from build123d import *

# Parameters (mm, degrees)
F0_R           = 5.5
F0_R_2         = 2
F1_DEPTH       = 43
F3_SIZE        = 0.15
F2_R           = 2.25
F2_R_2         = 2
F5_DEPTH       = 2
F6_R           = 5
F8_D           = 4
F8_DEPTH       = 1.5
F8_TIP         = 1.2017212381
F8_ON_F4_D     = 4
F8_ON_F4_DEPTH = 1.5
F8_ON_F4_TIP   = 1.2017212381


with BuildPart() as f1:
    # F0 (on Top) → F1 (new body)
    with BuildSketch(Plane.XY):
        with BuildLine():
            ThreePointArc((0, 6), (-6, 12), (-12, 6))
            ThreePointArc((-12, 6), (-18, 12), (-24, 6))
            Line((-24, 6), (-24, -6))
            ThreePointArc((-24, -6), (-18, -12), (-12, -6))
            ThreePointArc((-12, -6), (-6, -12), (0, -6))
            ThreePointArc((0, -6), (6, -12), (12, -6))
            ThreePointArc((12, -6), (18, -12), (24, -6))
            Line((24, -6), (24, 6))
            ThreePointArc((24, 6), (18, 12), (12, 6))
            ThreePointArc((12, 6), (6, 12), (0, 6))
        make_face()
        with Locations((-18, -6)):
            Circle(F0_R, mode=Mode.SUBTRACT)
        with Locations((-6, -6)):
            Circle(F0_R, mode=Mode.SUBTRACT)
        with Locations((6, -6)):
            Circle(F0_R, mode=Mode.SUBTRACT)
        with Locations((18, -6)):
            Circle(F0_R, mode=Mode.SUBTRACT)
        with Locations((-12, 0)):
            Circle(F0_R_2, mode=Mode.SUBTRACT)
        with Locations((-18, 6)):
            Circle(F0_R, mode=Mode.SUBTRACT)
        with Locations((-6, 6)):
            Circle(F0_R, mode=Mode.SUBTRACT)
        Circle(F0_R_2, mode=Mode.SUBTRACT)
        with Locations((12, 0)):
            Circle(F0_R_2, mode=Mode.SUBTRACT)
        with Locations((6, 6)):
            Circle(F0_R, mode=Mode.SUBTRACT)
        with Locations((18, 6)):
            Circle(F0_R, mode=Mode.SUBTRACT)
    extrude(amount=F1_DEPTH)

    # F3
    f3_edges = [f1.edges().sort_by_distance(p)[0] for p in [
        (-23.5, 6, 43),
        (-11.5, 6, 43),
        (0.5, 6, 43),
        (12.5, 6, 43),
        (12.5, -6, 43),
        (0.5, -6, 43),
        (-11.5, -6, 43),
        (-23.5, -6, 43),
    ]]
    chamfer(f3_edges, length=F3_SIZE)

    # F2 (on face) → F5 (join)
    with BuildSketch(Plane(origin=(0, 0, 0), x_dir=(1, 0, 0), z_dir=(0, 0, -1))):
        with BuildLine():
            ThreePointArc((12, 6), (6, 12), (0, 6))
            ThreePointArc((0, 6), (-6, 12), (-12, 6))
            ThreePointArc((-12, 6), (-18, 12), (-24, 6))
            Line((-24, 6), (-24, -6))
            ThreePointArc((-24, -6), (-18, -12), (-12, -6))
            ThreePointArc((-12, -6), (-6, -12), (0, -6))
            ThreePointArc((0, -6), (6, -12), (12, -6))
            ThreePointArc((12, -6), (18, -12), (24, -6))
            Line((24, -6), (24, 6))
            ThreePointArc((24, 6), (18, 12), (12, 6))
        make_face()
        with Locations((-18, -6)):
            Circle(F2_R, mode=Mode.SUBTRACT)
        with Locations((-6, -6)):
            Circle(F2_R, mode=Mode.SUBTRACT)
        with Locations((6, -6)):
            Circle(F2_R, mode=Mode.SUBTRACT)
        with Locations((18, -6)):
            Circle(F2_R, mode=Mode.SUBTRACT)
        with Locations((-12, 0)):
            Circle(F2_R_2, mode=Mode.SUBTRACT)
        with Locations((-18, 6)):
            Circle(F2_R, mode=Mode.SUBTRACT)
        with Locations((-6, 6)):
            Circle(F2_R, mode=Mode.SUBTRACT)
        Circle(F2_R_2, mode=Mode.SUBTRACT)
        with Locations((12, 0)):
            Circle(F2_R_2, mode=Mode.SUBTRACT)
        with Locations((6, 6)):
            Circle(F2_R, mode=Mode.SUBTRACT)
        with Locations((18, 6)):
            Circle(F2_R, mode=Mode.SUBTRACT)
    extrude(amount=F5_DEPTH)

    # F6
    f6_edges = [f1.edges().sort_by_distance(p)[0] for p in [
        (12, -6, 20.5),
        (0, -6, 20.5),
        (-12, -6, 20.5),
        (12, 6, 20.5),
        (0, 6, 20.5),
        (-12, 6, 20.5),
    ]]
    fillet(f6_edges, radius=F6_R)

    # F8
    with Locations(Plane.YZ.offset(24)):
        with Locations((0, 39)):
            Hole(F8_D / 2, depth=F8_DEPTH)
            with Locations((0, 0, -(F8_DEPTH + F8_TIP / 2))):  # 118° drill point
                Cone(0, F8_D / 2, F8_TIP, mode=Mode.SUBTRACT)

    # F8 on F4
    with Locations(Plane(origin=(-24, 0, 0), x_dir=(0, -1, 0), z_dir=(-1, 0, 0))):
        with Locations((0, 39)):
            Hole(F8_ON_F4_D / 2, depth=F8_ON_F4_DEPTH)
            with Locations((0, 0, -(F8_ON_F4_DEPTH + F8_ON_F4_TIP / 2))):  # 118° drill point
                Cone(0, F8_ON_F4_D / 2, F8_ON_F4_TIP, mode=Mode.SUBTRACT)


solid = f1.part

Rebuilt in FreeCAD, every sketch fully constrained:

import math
import FreeCAD as App
import Part
import Sketcher
Q = App.Units.Quantity


def edges_at(feature, points):
    """Names of the edges that pass closest to the given points."""
    edges = feature.Shape.Edges
    near = lambda p: min(range(len(edges)), key=lambda i: edges[i].distToShape(Part.Vertex(*p))[0])
    return sorted({f"Edge{near(p) + 1}" for p in points})

doc = App.newDocument("Part")
body = doc.addObject("PartDesign::Body", "Body")

sketch1 = body.newObject("Sketcher::SketchObject", "Sketch")
sketch1.AttachmentSupport = (doc.getObject("XY_Plane"), [""])
sketch1.MapMode = "FlatFace"
sketch1.addGeometry([
    Part.ArcOfCircle(Part.Circle(App.Vector(-6, 6, 0), App.Vector(0, 0, 1), 6), math.radians(0), math.radians(180)),
    Part.ArcOfCircle(Part.Circle(App.Vector(-18, 6, 0), App.Vector(0, 0, 1), 6), math.radians(0), math.radians(180)),
    Part.LineSegment(App.Vector(-24, 6, 0), App.Vector(-24, -6, 0)),
    Part.ArcOfCircle(Part.Circle(App.Vector(-18, -6, 0), App.Vector(0, 0, 1), 6), math.radians(180), math.radians(360)),
    Part.ArcOfCircle(Part.Circle(App.Vector(-6, -6, 0), App.Vector(0, 0, 1), 6), math.radians(180), math.radians(360)),
    Part.ArcOfCircle(Part.Circle(App.Vector(6, -6, 0), App.Vector(0, 0, 1), 6), math.radians(180), math.radians(360)),
    Part.ArcOfCircle(Part.Circle(App.Vector(18, -6, 0), App.Vector(0, 0, 1), 6), math.radians(180), math.radians(360)),
    Part.LineSegment(App.Vector(24, -6, 0), App.Vector(24, 6, 0)),
    Part.ArcOfCircle(Part.Circle(App.Vector(18, 6, 0), App.Vector(0, 0, 1), 6), math.radians(0), math.radians(180)),
    Part.ArcOfCircle(Part.Circle(App.Vector(6, 6, 0), App.Vector(0, 0, 1), 6), math.radians(0), math.radians(180)),
    Part.Circle(App.Vector(-18, -6, 0), App.Vector(0, 0, 1), 5.5),
    Part.Circle(App.Vector(-6, -6, 0), App.Vector(0, 0, 1), 5.5),
    Part.Circle(App.Vector(6, -6, 0), App.Vector(0, 0, 1), 5.5),
    Part.Circle(App.Vector(18, -6, 0), App.Vector(0, 0, 1), 5.5),
    Part.Circle(App.Vector(-12, 0, 0), App.Vector(0, 0, 1), 2),
    Part.Circle(App.Vector(-18, 6, 0), App.Vector(0, 0, 1), 5.5),
    Part.Circle(App.Vector(-6, 6, 0), App.Vector(0, 0, 1), 5.5),
    Part.Circle(App.Vector(0, 0, 0), App.Vector(0, 0, 1), 2),
    Part.Circle(App.Vector(12, 0, 0), App.Vector(0, 0, 1), 2),
    Part.Circle(App.Vector(6, 6, 0), App.Vector(0, 0, 1), 5.5),
    Part.Circle(App.Vector(18, 6, 0), App.Vector(0, 0, 1), 5.5),
], False)
sketch1.addConstraint([
    Sketcher.Constraint("Tangent", 0, 2, 1, 1),
    Sketcher.Constraint("Tangent", 1, 2, 2, 1),
    Sketcher.Constraint("Tangent", 2, 2, 3, 1),
    Sketcher.Constraint("Tangent", 3, 2, 4, 1),
    Sketcher.Constraint("Tangent", 4, 2, 5, 1),
    Sketcher.Constraint("Tangent", 5, 2, 6, 1),
    Sketcher.Constraint("Tangent", 6, 2, 7, 1),
    Sketcher.Constraint("Tangent", 7, 2, 8, 1),
    Sketcher.Constraint("Tangent", 8, 2, 9, 1),
    Sketcher.Constraint("Tangent", 9, 2, 0, 1),
    Sketcher.Constraint("Vertical", 2),
    Sketcher.Constraint("Vertical", 7),
    Sketcher.Constraint("Coincident", 17, 3, -1, 1),
    Sketcher.Constraint("Coincident", 10, 3, 3, 3),
    Sketcher.Constraint("Coincident", 11, 3, 4, 3),
    Sketcher.Constraint("Coincident", 12, 3, 5, 3),
    Sketcher.Constraint("Coincident", 13, 3, 6, 3),
    Sketcher.Constraint("Coincident", 15, 3, 1, 3),
    Sketcher.Constraint("Coincident", 16, 3, 0, 3),
    Sketcher.Constraint("Coincident", 19, 3, 9, 3),
    Sketcher.Constraint("Coincident", 20, 3, 8, 3),
    Sketcher.Constraint("Equal", 0, 1),
    Sketcher.Constraint("Equal", 1, 3),
    Sketcher.Constraint("Equal", 3, 4),
    Sketcher.Constraint("Equal", 4, 5),
    Sketcher.Constraint("Equal", 5, 6),
    Sketcher.Constraint("Equal", 6, 8),
    Sketcher.Constraint("Equal", 10, 11),
    Sketcher.Constraint("Equal", 11, 12),
    Sketcher.Constraint("Equal", 12, 13),
    Sketcher.Constraint("Equal", 13, 15),
    Sketcher.Constraint("Equal", 15, 16),
    Sketcher.Constraint("Equal", 14, 17),
    Sketcher.Constraint("Equal", 17, 18),
    Sketcher.Constraint("Equal", 16, 19),
    Sketcher.Constraint("Equal", 19, 20),
    Sketcher.Constraint("Symmetric", 0, 3, 5, 3, -1, 1),
    Sketcher.Constraint("Symmetric", 14, 3, 18, 3, -1, 1),
    Sketcher.Constraint("PointOnObject", 14, 3, -1),
    Sketcher.Constraint("Horizontal", 0, 3, 1, 3),
    Sketcher.Constraint("Horizontal", 3, 3, 4, 3),
    Sketcher.Constraint("Horizontal", 4, 3, 5, 3),
    Sketcher.Constraint("Horizontal", 5, 3, 6, 3),
    Sketcher.Constraint("Horizontal", 1, 3, 8, 3),
    Sketcher.Constraint("Horizontal", 8, 3, 9, 3),
    Sketcher.Constraint("Vertical", 14, 3, 0, 2),
    Sketcher.Constraint("Diameter", 10, Q("11 mm")),
    Sketcher.Constraint("Diameter", 14, Q("4 mm")),
    Sketcher.Constraint("Radius", 0, Q("6 mm")),
    Sketcher.Constraint("DistanceY", 2, 2, 2, 1, Q("12 mm")),
])
pad1 = body.newObject("PartDesign::Pad", "Pad")
pad1.Profile = sketch1
pad1.Length = 43
doc.recompute()

chamfer = body.newObject("PartDesign::Chamfer", "Chamfer")
chamfer.Base = (pad1, edges_at(pad1, [
    (-23.5, 6, 43),
    (-11.5, 6, 43),
    (0.5, 6, 43),
    (12.5, 6, 43),
    (12.5, -6, 43),
    (0.5, -6, 43),
    (-11.5, -6, 43),
    (-23.5, -6, 43),
]))
chamfer.Size = 0.15

sketch2 = body.newObject("Sketcher::SketchObject", "Sketch001")
sketch2.AttachmentSupport = (doc.getObject("XY_Plane"), [""])
sketch2.MapMode = "FlatFace"
sketch2.addGeometry([
    Part.ArcOfCircle(Part.Circle(App.Vector(6, -6, 0), App.Vector(0, 0, 1), 6), math.radians(180), math.radians(360)),
    Part.ArcOfCircle(Part.Circle(App.Vector(-6, -6, 0), App.Vector(0, 0, 1), 6), math.radians(180), math.radians(360)),
    Part.ArcOfCircle(Part.Circle(App.Vector(-18, -6, 0), App.Vector(0, 0, 1), 6), math.radians(180), math.radians(360)),
    Part.LineSegment(App.Vector(-24, -6, 0), App.Vector(-24, 6, 0)),
    Part.ArcOfCircle(Part.Circle(App.Vector(-18, 6, 0), App.Vector(0, 0, 1), 6), math.radians(0), math.radians(180)),
    Part.ArcOfCircle(Part.Circle(App.Vector(-6, 6, 0), App.Vector(0, 0, 1), 6), math.radians(0), math.radians(180)),
    Part.ArcOfCircle(Part.Circle(App.Vector(6, 6, 0), App.Vector(0, 0, 1), 6), math.radians(0), math.radians(180)),
    Part.ArcOfCircle(Part.Circle(App.Vector(18, 6, 0), App.Vector(0, 0, 1), 6), math.radians(0), math.radians(180)),
    Part.LineSegment(App.Vector(24, 6, 0), App.Vector(24, -6, 0)),
    Part.ArcOfCircle(Part.Circle(App.Vector(18, -6, 0), App.Vector(0, 0, 1), 6), math.radians(180), math.radians(360)),
    Part.Circle(App.Vector(-18, 6, 0), App.Vector(0, 0, 1), 2.25),
    Part.Circle(App.Vector(-6, 6, 0), App.Vector(0, 0, 1), 2.25),
    Part.Circle(App.Vector(6, 6, 0), App.Vector(0, 0, 1), 2.25),
    Part.Circle(App.Vector(18, 6, 0), App.Vector(0, 0, 1), 2.25),
    Part.Circle(App.Vector(-12, 0, 0), App.Vector(0, 0, 1), 2),
    Part.Circle(App.Vector(-18, -6, 0), App.Vector(0, 0, 1), 2.25),
    Part.Circle(App.Vector(-6, -6, 0), App.Vector(0, 0, 1), 2.25),
    Part.Circle(App.Vector(0, 0, 0), App.Vector(0, 0, 1), 2),
    Part.Circle(App.Vector(12, 0, 0), App.Vector(0, 0, 1), 2),
    Part.Circle(App.Vector(6, -6, 0), App.Vector(0, 0, 1), 2.25),
    Part.Circle(App.Vector(18, -6, 0), App.Vector(0, 0, 1), 2.25),
], False)
sketch2.addConstraint([
    Sketcher.Constraint("Tangent", 0, 1, 1, 2),
    Sketcher.Constraint("Tangent", 1, 1, 2, 2),
    Sketcher.Constraint("Tangent", 2, 1, 3, 1),
    Sketcher.Constraint("Tangent", 3, 2, 4, 2),
    Sketcher.Constraint("Tangent", 4, 1, 5, 2),
    Sketcher.Constraint("Tangent", 5, 1, 6, 2),
    Sketcher.Constraint("Tangent", 6, 1, 7, 2),
    Sketcher.Constraint("Tangent", 7, 1, 8, 1),
    Sketcher.Constraint("Tangent", 8, 2, 9, 2),
    Sketcher.Constraint("Tangent", 9, 1, 0, 2),
    Sketcher.Constraint("Vertical", 3),
    Sketcher.Constraint("Vertical", 8),
    Sketcher.Constraint("Coincident", 17, 3, -1, 1),
    Sketcher.Constraint("Coincident", 10, 3, 4, 3),
    Sketcher.Constraint("Coincident", 11, 3, 5, 3),
    Sketcher.Constraint("Coincident", 12, 3, 6, 3),
    Sketcher.Constraint("Coincident", 13, 3, 7, 3),
    Sketcher.Constraint("Coincident", 15, 3, 2, 3),
    Sketcher.Constraint("Coincident", 16, 3, 1, 3),
    Sketcher.Constraint("Coincident", 19, 3, 0, 3),
    Sketcher.Constraint("Coincident", 20, 3, 9, 3),
    Sketcher.Constraint("Equal", 0, 1),
    Sketcher.Constraint("Equal", 1, 2),
    Sketcher.Constraint("Equal", 2, 4),
    Sketcher.Constraint("Equal", 4, 5),
    Sketcher.Constraint("Equal", 5, 6),
    Sketcher.Constraint("Equal", 6, 7),
    Sketcher.Constraint("Equal", 10, 11),
    Sketcher.Constraint("Equal", 11, 12),
    Sketcher.Constraint("Equal", 12, 13),
    Sketcher.Constraint("Equal", 13, 15),
    Sketcher.Constraint("Equal", 15, 16),
    Sketcher.Constraint("Equal", 14, 17),
    Sketcher.Constraint("Equal", 17, 18),
    Sketcher.Constraint("Equal", 16, 19),
    Sketcher.Constraint("Equal", 19, 20),
    Sketcher.Constraint("Symmetric", 0, 3, 5, 3, -1, 1),
    Sketcher.Constraint("Symmetric", 14, 3, 18, 3, -1, 1),
    Sketcher.Constraint("PointOnObject", 14, 3, -1),
    Sketcher.Constraint("Horizontal", 0, 3, 1, 3),
    Sketcher.Constraint("Horizontal", 1, 3, 2, 3),
    Sketcher.Constraint("Horizontal", 4, 3, 5, 3),
    Sketcher.Constraint("Horizontal", 5, 3, 6, 3),
    Sketcher.Constraint("Horizontal", 6, 3, 7, 3),
    Sketcher.Constraint("Horizontal", 2, 3, 9, 3),
    Sketcher.Constraint("Vertical", 14, 3, 1, 1),
    Sketcher.Constraint("Diameter", 14, Q("4 mm")),
    Sketcher.Constraint("Radius", 0, Q("6 mm")),
    Sketcher.Constraint("Diameter", 10, Q("4.5 mm")),
    Sketcher.Constraint("DistanceY", 3, 1, 3, 2, Q("12 mm")),
])
pad2 = body.newObject("PartDesign::Pad", "Pad001")
pad2.Profile = sketch2
pad2.Length = 2
pad2.Reversed = True
doc.recompute()

fillet = body.newObject("PartDesign::Fillet", "Fillet")
fillet.Base = (pad2, edges_at(pad2, [
    (12, -6, 20.5),
    (0, -6, 20.5),
    (-12, -6, 20.5),
    (12, 6, 20.5),
    (0, 6, 20.5),
    (-12, 6, 20.5),
]))
fillet.Radius = 5

sketch3 = body.newObject("Sketcher::SketchObject", "Sketch002")
sketch3.AttachmentSupport = (doc.getObject("YZ_Plane"), [""])
sketch3.MapMode = "FlatFace"
sketch3.AttachmentOffset = App.Placement(App.Vector(0, 0, 24), App.Rotation())
sketch3.addGeometry(Part.Circle(App.Vector(0, 39, 0), App.Vector(0, 0, 1), 2), False)
sketch3.addConstraint([
    Sketcher.Constraint("PointOnObject", 0, 3, -2),
    Sketcher.Constraint("Diameter", 0, Q("4 mm")),
    Sketcher.Constraint("DistanceY", -1, 1, 0, 3, Q("39 mm")),
])
doc.recompute()
hole = body.newObject("PartDesign::Hole", "Hole")
hole.Profile = sketch3
hole.ThreadType = "None"
hole.Diameter = 4
hole.DepthType = "Dimension"
hole.Depth = 1.5
hole.DrillPoint = "Angled"
hole.DrillPointAngle = 118

sketch4 = body.newObject("Sketcher::SketchObject", "Sketch003")
sketch4.AttachmentSupport = (doc.getObject("YZ_Plane"), [""])
sketch4.MapMode = "FlatFace"
sketch4.AttachmentOffset = App.Placement(App.Vector(0, 0, -24), App.Rotation())
sketch4.addGeometry(Part.Circle(App.Vector(0, 39, 0), App.Vector(0, 0, 1), 2), False)
sketch4.addConstraint([
    Sketcher.Constraint("PointOnObject", 0, 3, -2),
    Sketcher.Constraint("Diameter", 0, Q("4 mm")),
    Sketcher.Constraint("DistanceY", -1, 1, 0, 3, Q("39 mm")),
])
doc.recompute()
hole2 = body.newObject("PartDesign::Hole", "Hole001")
hole2.Profile = sketch4
hole2.ThreadType = "None"
hole2.Diameter = 4
hole2.DepthType = "Dimension"
hole2.Depth = 1.5
hole2.DrillPoint = "Angled"
hole2.DrillPointAngle = 118
hole2.Reversed = True

doc.recompute()
